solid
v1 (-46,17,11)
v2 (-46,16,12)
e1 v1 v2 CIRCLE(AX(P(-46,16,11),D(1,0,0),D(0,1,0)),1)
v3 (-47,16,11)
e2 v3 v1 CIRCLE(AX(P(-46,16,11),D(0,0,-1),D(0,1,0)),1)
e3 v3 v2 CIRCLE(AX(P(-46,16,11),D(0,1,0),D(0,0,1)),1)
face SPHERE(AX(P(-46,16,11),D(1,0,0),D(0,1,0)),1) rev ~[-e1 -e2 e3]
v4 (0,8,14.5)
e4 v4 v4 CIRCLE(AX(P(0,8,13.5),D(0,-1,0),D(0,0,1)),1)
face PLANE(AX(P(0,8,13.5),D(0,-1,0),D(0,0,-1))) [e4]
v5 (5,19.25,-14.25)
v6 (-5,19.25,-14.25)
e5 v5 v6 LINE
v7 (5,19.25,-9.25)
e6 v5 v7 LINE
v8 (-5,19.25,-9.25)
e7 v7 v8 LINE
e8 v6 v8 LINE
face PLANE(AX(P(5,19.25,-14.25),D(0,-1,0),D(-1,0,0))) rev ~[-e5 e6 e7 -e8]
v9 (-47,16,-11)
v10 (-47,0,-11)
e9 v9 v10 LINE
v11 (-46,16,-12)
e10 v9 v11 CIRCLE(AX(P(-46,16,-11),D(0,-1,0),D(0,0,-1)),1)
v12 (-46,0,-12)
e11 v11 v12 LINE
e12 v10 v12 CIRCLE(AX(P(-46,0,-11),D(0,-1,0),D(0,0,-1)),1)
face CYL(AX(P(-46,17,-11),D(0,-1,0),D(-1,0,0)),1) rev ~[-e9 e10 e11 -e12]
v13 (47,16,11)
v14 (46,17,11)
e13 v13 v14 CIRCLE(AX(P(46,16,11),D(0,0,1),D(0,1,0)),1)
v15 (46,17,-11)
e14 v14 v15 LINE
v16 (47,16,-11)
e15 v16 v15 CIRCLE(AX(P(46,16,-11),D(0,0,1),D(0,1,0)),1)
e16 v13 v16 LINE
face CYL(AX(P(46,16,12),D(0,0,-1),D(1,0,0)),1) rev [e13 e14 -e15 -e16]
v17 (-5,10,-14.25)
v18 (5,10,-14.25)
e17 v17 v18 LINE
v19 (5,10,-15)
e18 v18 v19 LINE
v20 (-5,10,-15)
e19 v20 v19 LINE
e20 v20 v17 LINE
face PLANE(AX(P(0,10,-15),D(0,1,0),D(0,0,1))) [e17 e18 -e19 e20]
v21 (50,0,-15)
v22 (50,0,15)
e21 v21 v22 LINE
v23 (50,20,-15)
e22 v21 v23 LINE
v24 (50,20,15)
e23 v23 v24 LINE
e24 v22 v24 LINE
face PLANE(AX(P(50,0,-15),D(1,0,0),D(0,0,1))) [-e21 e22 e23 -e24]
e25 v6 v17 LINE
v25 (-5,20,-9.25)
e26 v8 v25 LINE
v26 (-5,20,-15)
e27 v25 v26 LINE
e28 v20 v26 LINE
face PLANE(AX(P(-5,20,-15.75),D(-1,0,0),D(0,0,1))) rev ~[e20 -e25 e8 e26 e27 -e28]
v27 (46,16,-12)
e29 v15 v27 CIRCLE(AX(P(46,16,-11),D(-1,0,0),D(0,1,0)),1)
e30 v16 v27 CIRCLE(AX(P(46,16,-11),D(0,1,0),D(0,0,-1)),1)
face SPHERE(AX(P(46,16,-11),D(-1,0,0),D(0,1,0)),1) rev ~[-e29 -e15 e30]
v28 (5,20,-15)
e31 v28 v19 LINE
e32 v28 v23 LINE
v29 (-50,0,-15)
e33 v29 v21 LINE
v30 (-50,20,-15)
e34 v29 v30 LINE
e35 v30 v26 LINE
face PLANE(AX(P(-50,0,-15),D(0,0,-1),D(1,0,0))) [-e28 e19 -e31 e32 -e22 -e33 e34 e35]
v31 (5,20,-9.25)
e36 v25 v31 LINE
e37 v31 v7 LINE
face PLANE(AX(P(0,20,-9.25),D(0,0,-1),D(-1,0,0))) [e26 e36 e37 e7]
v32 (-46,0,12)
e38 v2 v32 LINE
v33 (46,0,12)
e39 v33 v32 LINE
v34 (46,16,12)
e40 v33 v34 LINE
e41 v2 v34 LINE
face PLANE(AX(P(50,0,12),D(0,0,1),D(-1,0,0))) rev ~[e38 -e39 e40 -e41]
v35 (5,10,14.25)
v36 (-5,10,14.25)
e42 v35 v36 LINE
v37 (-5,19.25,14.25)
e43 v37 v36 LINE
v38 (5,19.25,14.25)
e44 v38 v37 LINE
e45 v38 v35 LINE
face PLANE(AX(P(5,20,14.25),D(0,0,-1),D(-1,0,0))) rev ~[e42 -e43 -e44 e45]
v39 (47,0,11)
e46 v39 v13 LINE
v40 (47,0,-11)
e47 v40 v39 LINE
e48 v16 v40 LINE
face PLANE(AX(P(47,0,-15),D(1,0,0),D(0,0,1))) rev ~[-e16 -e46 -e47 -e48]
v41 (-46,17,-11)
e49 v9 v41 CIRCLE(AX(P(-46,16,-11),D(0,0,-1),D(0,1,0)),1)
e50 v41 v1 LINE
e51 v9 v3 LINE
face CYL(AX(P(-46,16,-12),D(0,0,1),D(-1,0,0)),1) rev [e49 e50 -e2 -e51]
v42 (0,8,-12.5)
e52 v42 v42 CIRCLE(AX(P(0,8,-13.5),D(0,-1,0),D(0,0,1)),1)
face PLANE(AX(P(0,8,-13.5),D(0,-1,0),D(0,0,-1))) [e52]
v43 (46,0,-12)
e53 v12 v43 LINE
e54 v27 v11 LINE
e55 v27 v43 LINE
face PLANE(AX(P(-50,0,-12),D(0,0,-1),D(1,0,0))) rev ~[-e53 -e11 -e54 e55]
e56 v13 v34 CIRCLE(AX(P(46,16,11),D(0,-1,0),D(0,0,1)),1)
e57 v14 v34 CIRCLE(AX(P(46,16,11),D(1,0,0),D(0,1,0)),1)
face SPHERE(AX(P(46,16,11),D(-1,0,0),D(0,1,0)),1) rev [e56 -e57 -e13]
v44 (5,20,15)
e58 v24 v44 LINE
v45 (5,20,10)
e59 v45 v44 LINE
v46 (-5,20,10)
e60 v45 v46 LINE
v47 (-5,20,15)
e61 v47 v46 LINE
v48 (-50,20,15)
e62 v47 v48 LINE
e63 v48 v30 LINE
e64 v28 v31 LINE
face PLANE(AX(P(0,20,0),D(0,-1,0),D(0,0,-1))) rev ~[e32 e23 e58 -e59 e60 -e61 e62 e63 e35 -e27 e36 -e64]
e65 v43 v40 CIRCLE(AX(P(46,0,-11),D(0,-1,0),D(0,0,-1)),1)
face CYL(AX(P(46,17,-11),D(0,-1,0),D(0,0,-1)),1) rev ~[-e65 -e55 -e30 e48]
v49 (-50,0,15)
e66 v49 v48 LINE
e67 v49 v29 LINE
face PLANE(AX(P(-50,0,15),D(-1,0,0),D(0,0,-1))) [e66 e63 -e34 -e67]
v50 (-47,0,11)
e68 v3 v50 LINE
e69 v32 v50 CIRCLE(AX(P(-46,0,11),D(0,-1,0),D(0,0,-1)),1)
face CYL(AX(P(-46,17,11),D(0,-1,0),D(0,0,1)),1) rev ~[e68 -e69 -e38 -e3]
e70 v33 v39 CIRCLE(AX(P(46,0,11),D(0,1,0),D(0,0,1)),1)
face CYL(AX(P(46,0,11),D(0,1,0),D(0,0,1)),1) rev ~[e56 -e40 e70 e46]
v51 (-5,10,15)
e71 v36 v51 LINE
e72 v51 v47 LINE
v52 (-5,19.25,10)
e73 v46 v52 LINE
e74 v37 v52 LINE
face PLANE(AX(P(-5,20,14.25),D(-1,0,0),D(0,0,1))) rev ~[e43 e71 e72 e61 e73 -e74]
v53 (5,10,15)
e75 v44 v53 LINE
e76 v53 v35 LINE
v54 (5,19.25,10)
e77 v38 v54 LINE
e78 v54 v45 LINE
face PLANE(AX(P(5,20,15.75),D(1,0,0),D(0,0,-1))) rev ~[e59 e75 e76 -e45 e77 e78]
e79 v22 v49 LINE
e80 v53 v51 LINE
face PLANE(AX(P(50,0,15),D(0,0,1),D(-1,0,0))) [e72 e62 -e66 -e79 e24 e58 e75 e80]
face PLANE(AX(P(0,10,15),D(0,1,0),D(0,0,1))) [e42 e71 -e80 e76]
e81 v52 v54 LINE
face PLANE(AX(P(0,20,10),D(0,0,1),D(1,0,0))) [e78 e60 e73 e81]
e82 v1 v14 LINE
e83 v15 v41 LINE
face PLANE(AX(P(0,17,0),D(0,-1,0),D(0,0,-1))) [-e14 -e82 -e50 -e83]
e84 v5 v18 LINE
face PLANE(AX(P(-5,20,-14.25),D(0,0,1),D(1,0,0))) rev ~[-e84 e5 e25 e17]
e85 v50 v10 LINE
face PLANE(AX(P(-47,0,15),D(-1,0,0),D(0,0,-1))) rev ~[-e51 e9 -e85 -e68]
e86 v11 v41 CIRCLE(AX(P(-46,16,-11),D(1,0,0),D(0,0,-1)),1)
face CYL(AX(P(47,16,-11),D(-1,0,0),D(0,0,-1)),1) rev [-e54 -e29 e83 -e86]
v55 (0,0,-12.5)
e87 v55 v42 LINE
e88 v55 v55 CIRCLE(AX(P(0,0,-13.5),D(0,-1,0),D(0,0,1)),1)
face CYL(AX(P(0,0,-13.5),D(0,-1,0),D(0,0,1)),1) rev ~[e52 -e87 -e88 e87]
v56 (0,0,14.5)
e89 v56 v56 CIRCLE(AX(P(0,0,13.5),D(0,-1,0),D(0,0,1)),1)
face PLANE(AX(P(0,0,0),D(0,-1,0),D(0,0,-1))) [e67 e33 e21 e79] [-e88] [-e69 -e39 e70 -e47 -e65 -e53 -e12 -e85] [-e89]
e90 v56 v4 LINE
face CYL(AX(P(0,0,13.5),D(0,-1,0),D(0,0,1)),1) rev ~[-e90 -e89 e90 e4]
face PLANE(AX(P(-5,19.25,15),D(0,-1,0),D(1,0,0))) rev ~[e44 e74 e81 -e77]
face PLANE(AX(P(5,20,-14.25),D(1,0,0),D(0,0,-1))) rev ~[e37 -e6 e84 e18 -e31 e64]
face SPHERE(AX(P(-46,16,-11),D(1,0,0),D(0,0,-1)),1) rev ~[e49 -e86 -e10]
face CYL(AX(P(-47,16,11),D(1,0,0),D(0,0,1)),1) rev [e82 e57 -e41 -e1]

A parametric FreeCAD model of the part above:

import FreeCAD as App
import Part
import Sketcher
Q = App.Units.Quantity


def edges_at(feature, points):
    """Names of the edges that pass closest to the given points."""
    edges = feature.Shape.Edges
    near = lambda p: min(range(len(edges)), key=lambda i: edges[i].distToShape(Part.Vertex(*p))[0])
    return sorted({f"Edge{near(p) + 1}" for p in points})


def faces_at(feature, points):
    """Names of the faces that lie closest to the given points."""
    faces = feature.Shape.Faces
    near = lambda p: min(range(len(faces)), key=lambda i: faces[i].distToShape(Part.Vertex(*p))[0])
    return sorted({f"Face{near(p) + 1}" for p in points})


def add_polygon(sketch, points):
    """Adds a closed chain of lines whose ends are joined by coincident constraints."""
    first, n = sketch.GeometryCount, len(points)
    for a, b in zip(points, points[1:] + points[:1]):
        sketch.addGeometry(Part.LineSegment(App.Vector(*a, 0), App.Vector(*b, 0)), False)
    for i in range(n):
        sketch.addConstraint(Sketcher.Constraint("Coincident", first + i, 2, first + (i + 1) % n, 1))

doc = App.newDocument("Part")
params = doc.addObject("Spreadsheet::Sheet", "Params")
for row, (alias, value) in enumerate([
    ("sketch1_width", "100 mm"),
    ("sketch1_height", "30 mm"),
    ("pad1_length", "20 mm"),
    ("thickness_wall", "3 mm"),
    ("fillet_radius", "1 mm"),
    ("sketch2_width", "10 mm"),
    ("sketch2_height", "1.5 mm"),
    ("pocket1_length", "10 mm"),
    ("sketch3_width", "10 mm"),
    ("sketch3_height", "1.5 mm"),
    ("pocket2_length", "5 mm"),
    ("sketch4_width", "10 mm"),
    ("sketch4_height", "1.5 mm"),
    ("pocket3_length", "5 mm"),
    ("sketch5_diameter", "2 mm"),
    ("pocket4_length", "8 mm"),
], start=1):
    params.set(f"A{row}", alias)
    params.set(f"B{row}", "=" + value)
    params.setAlias(f"B{row}", alias)

body = doc.addObject("PartDesign::Body", "Body")

# Sketch on XZ plane
sketch1 = doc.addObject("Sketcher::SketchObject", "Sketch")
body.addObject(sketch1)
sketch1.AttachmentSupport = (doc.XZ_Plane, [""])
sketch1.MapMode = "FlatFace"
add_polygon(sketch1, [(50, -15), (50, 15), (-50, 15), (-50, -15)])  # lines 0-3
sketch1.addConstraint(Sketcher.Constraint("Vertical", 0))
sketch1.addConstraint(Sketcher.Constraint("Horizontal", 1))
sketch1.addConstraint(Sketcher.Constraint("Vertical", 2))
sketch1.addConstraint(Sketcher.Constraint("Horizontal", 3))
sketch1.addConstraint(Sketcher.Constraint("Symmetric", 0, 2, 2, 2, -1, 1))
sketch1.addConstraint(Sketcher.Constraint("DistanceX", 1, 2, 1, 1, Q("100 mm")))
sketch1.addConstraint(Sketcher.Constraint("DistanceY", 0, 1, 0, 2, Q("30 mm")))
sketch1.setExpression("Constraints[9]", "Params.sketch1_width")
sketch1.setExpression("Constraints[10]", "Params.sketch1_height")
pad1 = doc.addObject("PartDesign::Pad", "Pad")
body.addObject(pad1)
pad1.Profile = sketch1
pad1.setExpression("Length", "Params.pad1_length")
pad1.Reversed = True
doc.recompute()

thickness = doc.addObject("PartDesign::Thickness", "Thickness")
body.addObject(thickness)
thickness.Base = (pad1, faces_at(pad1, [(-32.333, 0, 10.3)]))
thickness.setExpression("Value", "Params.thickness_wall")
thickness.Reversed = True
thickness.Join = "Intersection"
doc.recompute()

fillet = doc.addObject("PartDesign::Fillet", "Fillet")
body.addObject(fillet)
fillet.Base = (thickness, edges_at(thickness, [
    (0, 17, 12),
    (0, 17, -12),
    (-47, 8.5, -12),
    (-47, 17, 0),
    (47, 17, 0),
    (47, 8.5, 12),
    (47, 8.5, -12),
    (-47, 8.5, 12),
]))
fillet.setExpression("Radius", "Params.fillet_radius")

# Sketch on XZ plane
sketch2 = doc.addObject("Sketcher::SketchObject", "Sketch001")
body.addObject(sketch2)
sketch2.AttachmentSupport = (doc.XZ_Plane, [""])
sketch2.MapMode = "FlatFace"
sketch2.AttachmentOffset = App.Placement(App.Vector(0, 0, -20), App.Rotation())
add_polygon(sketch2, [(-5, 14.2), (-5, 15.8), (5, 15.8), (5, 14.2)])  # lines 0-3
add_polygon(sketch2, [(-5, -15.8), (-5, -14.2), (5, -14.2), (5, -15.8)])  # lines 4-7
sketch2.addConstraint(Sketcher.Constraint("Vertical", 0))
sketch2.addConstraint(Sketcher.Constraint("Horizontal", 1))
sketch2.addConstraint(Sketcher.Constraint("Vertical", 2))
sketch2.addConstraint(Sketcher.Constraint("Horizontal", 3))
sketch2.addConstraint(Sketcher.Constraint("Vertical", 4))
sketch2.addConstraint(Sketcher.Constraint("Horizontal", 5))
sketch2.addConstraint(Sketcher.Constraint("Vertical", 6))
sketch2.addConstraint(Sketcher.Constraint("Horizontal", 7))
sketch2.addConstraint(Sketcher.Constraint("Symmetric", 2, 2, 4, 2, -1, 1))
sketch2.addConstraint(Sketcher.Constraint("Symmetric", 0, 2, 6, 2, -1, 1))
sketch2.addConstraint(Sketcher.Constraint("Vertical", 3, 2, 4, 2))
sketch2.addConstraint(Sketcher.Constraint("DistanceX", 1, 1, 1, 2, Q("10 mm")))
sketch2.addConstraint(Sketcher.Constraint("DistanceY", 0, 1, 0, 2, Q("1.5 mm")))
sketch2.addConstraint(Sketcher.Constraint("DistanceY", 4, 2, 0, 2, Q("30 mm")))
sketch2.setExpression("Constraints[19]", "Params.sketch2_width")
sketch2.setExpression("Constraints[20]", "Params.sketch2_height")
pocket1 = doc.addObject("PartDesign::Pocket", "Pocket")
body.addObject(pocket1)
pocket1.Profile = sketch2
pocket1.setExpression("Length", "Params.pocket1_length")
pocket1.Reversed = True

# Sketch on XY plane
sketch3 = doc.addObject("Sketcher::SketchObject", "Sketch002")
body.addObject(sketch3)
sketch3.AttachmentSupport = (doc.XY_Plane, [""])
sketch3.MapMode = "FlatFace"
sketch3.AttachmentOffset = App.Placement(App.Vector(0, 0, 15), App.Rotation())
add_polygon(sketch3, [(-5, 20.8), (-5, 19.2), (5, 19.2), (5, 20.8)])  # lines 0-3
sketch3.addConstraint(Sketcher.Constraint("Vertical", 0))
sketch3.addConstraint(Sketcher.Constraint("Horizontal", 1))
sketch3.addConstraint(Sketcher.Constraint("Vertical", 2))
sketch3.addConstraint(Sketcher.Constraint("Horizontal", 3))
sketch3.addConstraint(Sketcher.Constraint("DistanceX", 1, 1, 1, 2, Q("10 mm")))
sketch3.addConstraint(Sketcher.Constraint("DistanceY", 0, 2, 0, 1, Q("1.5 mm")))
sketch3.addConstraint(Sketcher.Constraint("DistanceX", 0, 2, -1, 1, Q("5 mm")))
sketch3.addConstraint(Sketcher.Constraint("DistanceY", -1, 1, 0, 2, Q("19.25 mm")))
sketch3.setExpression("Constraints[8]", "Params.sketch3_width")
sketch3.setExpression("Constraints[9]", "Params.sketch3_height")
pocket2 = doc.addObject("PartDesign::Pocket", "Pocket001")
body.addObject(pocket2)
pocket2.Profile = sketch3
pocket2.setExpression("Length", "Params.pocket2_length")

# Sketch on XY plane
sketch4 = doc.addObject("Sketcher::SketchObject", "Sketch003")
body.addObject(sketch4)
sketch4.AttachmentSupport = (doc.XY_Plane, [""])
sketch4.MapMode = "FlatFace"
sketch4.AttachmentOffset = App.Placement(App.Vector(0, 0, -14.25), App.Rotation())
add_polygon(sketch4, [(-5, 19.2), (-5, 20.8), (5, 20.8), (5, 19.2)])  # lines 0-3
sketch4.addConstraint(Sketcher.Constraint("Vertical", 0))
sketch4.addConstraint(Sketcher.Constraint("Horizontal", 1))
sketch4.addConstraint(Sketcher.Constraint("Vertical", 2))
sketch4.addConstraint(Sketcher.Constraint("Horizontal", 3))
sketch4.addConstraint(Sketcher.Constraint("DistanceX", 1, 1, 1, 2, Q("10 mm")))
sketch4.addConstraint(Sketcher.Constraint("DistanceY", 0, 1, 0, 2, Q("1.5 mm")))
sketch4.addConstraint(Sketcher.Constraint("DistanceX", 0, 2, -1, 1, Q("5 mm")))
sketch4.addConstraint(Sketcher.Constraint("DistanceY", -1, 1, 0, 2, Q("20.75 mm")))
sketch4.setExpression("Constraints[8]", "Params.sketch4_width")
sketch4.setExpression("Constraints[9]", "Params.sketch4_height")
pocket3 = doc.addObject("PartDesign::Pocket", "Pocket002")
body.addObject(pocket3)
pocket3.Profile = sketch4
pocket3.setExpression("Length", "Params.pocket3_length")
pocket3.Reversed = True

# Sketch on XZ plane
sketch5 = doc.addObject("Sketcher::SketchObject", "Sketch004")
body.addObject(sketch5)
sketch5.AttachmentSupport = (doc.XZ_Plane, [""])
sketch5.MapMode = "FlatFace"
sketch5.addGeometry(Part.Circle(App.Vector(0, 13.5, 0), App.Vector(0, 0, 1), 1), False)
sketch5.addGeometry(Part.Circle(App.Vector(0, -13.5, 0), App.Vector(0, 0, 1), 1), False)
sketch5.addConstraint(Sketcher.Constraint("Equal", 0, 1))
sketch5.addConstraint(Sketcher.Constraint("Symmetric", 0, 3, 1, 3, -1, 1))
sketch5.addConstraint(Sketcher.Constraint("PointOnObject", 0, 3, -2))
sketch5.addConstraint(Sketcher.Constraint("Diameter", 0, Q("2 mm")))
sketch5.addConstraint(Sketcher.Constraint("DistanceY", 1, 3, 0, 3, Q("27 mm")))
sketch5.setExpression("Constraints[3]", "Params.sketch5_diameter")
pocket4 = doc.addObject("PartDesign::Pocket", "Pocket003")
body.addObject(pocket4)
pocket4.Profile = sketch5
pocket4.setExpression("Length", "Params.pocket4_length")

doc.recompute()
